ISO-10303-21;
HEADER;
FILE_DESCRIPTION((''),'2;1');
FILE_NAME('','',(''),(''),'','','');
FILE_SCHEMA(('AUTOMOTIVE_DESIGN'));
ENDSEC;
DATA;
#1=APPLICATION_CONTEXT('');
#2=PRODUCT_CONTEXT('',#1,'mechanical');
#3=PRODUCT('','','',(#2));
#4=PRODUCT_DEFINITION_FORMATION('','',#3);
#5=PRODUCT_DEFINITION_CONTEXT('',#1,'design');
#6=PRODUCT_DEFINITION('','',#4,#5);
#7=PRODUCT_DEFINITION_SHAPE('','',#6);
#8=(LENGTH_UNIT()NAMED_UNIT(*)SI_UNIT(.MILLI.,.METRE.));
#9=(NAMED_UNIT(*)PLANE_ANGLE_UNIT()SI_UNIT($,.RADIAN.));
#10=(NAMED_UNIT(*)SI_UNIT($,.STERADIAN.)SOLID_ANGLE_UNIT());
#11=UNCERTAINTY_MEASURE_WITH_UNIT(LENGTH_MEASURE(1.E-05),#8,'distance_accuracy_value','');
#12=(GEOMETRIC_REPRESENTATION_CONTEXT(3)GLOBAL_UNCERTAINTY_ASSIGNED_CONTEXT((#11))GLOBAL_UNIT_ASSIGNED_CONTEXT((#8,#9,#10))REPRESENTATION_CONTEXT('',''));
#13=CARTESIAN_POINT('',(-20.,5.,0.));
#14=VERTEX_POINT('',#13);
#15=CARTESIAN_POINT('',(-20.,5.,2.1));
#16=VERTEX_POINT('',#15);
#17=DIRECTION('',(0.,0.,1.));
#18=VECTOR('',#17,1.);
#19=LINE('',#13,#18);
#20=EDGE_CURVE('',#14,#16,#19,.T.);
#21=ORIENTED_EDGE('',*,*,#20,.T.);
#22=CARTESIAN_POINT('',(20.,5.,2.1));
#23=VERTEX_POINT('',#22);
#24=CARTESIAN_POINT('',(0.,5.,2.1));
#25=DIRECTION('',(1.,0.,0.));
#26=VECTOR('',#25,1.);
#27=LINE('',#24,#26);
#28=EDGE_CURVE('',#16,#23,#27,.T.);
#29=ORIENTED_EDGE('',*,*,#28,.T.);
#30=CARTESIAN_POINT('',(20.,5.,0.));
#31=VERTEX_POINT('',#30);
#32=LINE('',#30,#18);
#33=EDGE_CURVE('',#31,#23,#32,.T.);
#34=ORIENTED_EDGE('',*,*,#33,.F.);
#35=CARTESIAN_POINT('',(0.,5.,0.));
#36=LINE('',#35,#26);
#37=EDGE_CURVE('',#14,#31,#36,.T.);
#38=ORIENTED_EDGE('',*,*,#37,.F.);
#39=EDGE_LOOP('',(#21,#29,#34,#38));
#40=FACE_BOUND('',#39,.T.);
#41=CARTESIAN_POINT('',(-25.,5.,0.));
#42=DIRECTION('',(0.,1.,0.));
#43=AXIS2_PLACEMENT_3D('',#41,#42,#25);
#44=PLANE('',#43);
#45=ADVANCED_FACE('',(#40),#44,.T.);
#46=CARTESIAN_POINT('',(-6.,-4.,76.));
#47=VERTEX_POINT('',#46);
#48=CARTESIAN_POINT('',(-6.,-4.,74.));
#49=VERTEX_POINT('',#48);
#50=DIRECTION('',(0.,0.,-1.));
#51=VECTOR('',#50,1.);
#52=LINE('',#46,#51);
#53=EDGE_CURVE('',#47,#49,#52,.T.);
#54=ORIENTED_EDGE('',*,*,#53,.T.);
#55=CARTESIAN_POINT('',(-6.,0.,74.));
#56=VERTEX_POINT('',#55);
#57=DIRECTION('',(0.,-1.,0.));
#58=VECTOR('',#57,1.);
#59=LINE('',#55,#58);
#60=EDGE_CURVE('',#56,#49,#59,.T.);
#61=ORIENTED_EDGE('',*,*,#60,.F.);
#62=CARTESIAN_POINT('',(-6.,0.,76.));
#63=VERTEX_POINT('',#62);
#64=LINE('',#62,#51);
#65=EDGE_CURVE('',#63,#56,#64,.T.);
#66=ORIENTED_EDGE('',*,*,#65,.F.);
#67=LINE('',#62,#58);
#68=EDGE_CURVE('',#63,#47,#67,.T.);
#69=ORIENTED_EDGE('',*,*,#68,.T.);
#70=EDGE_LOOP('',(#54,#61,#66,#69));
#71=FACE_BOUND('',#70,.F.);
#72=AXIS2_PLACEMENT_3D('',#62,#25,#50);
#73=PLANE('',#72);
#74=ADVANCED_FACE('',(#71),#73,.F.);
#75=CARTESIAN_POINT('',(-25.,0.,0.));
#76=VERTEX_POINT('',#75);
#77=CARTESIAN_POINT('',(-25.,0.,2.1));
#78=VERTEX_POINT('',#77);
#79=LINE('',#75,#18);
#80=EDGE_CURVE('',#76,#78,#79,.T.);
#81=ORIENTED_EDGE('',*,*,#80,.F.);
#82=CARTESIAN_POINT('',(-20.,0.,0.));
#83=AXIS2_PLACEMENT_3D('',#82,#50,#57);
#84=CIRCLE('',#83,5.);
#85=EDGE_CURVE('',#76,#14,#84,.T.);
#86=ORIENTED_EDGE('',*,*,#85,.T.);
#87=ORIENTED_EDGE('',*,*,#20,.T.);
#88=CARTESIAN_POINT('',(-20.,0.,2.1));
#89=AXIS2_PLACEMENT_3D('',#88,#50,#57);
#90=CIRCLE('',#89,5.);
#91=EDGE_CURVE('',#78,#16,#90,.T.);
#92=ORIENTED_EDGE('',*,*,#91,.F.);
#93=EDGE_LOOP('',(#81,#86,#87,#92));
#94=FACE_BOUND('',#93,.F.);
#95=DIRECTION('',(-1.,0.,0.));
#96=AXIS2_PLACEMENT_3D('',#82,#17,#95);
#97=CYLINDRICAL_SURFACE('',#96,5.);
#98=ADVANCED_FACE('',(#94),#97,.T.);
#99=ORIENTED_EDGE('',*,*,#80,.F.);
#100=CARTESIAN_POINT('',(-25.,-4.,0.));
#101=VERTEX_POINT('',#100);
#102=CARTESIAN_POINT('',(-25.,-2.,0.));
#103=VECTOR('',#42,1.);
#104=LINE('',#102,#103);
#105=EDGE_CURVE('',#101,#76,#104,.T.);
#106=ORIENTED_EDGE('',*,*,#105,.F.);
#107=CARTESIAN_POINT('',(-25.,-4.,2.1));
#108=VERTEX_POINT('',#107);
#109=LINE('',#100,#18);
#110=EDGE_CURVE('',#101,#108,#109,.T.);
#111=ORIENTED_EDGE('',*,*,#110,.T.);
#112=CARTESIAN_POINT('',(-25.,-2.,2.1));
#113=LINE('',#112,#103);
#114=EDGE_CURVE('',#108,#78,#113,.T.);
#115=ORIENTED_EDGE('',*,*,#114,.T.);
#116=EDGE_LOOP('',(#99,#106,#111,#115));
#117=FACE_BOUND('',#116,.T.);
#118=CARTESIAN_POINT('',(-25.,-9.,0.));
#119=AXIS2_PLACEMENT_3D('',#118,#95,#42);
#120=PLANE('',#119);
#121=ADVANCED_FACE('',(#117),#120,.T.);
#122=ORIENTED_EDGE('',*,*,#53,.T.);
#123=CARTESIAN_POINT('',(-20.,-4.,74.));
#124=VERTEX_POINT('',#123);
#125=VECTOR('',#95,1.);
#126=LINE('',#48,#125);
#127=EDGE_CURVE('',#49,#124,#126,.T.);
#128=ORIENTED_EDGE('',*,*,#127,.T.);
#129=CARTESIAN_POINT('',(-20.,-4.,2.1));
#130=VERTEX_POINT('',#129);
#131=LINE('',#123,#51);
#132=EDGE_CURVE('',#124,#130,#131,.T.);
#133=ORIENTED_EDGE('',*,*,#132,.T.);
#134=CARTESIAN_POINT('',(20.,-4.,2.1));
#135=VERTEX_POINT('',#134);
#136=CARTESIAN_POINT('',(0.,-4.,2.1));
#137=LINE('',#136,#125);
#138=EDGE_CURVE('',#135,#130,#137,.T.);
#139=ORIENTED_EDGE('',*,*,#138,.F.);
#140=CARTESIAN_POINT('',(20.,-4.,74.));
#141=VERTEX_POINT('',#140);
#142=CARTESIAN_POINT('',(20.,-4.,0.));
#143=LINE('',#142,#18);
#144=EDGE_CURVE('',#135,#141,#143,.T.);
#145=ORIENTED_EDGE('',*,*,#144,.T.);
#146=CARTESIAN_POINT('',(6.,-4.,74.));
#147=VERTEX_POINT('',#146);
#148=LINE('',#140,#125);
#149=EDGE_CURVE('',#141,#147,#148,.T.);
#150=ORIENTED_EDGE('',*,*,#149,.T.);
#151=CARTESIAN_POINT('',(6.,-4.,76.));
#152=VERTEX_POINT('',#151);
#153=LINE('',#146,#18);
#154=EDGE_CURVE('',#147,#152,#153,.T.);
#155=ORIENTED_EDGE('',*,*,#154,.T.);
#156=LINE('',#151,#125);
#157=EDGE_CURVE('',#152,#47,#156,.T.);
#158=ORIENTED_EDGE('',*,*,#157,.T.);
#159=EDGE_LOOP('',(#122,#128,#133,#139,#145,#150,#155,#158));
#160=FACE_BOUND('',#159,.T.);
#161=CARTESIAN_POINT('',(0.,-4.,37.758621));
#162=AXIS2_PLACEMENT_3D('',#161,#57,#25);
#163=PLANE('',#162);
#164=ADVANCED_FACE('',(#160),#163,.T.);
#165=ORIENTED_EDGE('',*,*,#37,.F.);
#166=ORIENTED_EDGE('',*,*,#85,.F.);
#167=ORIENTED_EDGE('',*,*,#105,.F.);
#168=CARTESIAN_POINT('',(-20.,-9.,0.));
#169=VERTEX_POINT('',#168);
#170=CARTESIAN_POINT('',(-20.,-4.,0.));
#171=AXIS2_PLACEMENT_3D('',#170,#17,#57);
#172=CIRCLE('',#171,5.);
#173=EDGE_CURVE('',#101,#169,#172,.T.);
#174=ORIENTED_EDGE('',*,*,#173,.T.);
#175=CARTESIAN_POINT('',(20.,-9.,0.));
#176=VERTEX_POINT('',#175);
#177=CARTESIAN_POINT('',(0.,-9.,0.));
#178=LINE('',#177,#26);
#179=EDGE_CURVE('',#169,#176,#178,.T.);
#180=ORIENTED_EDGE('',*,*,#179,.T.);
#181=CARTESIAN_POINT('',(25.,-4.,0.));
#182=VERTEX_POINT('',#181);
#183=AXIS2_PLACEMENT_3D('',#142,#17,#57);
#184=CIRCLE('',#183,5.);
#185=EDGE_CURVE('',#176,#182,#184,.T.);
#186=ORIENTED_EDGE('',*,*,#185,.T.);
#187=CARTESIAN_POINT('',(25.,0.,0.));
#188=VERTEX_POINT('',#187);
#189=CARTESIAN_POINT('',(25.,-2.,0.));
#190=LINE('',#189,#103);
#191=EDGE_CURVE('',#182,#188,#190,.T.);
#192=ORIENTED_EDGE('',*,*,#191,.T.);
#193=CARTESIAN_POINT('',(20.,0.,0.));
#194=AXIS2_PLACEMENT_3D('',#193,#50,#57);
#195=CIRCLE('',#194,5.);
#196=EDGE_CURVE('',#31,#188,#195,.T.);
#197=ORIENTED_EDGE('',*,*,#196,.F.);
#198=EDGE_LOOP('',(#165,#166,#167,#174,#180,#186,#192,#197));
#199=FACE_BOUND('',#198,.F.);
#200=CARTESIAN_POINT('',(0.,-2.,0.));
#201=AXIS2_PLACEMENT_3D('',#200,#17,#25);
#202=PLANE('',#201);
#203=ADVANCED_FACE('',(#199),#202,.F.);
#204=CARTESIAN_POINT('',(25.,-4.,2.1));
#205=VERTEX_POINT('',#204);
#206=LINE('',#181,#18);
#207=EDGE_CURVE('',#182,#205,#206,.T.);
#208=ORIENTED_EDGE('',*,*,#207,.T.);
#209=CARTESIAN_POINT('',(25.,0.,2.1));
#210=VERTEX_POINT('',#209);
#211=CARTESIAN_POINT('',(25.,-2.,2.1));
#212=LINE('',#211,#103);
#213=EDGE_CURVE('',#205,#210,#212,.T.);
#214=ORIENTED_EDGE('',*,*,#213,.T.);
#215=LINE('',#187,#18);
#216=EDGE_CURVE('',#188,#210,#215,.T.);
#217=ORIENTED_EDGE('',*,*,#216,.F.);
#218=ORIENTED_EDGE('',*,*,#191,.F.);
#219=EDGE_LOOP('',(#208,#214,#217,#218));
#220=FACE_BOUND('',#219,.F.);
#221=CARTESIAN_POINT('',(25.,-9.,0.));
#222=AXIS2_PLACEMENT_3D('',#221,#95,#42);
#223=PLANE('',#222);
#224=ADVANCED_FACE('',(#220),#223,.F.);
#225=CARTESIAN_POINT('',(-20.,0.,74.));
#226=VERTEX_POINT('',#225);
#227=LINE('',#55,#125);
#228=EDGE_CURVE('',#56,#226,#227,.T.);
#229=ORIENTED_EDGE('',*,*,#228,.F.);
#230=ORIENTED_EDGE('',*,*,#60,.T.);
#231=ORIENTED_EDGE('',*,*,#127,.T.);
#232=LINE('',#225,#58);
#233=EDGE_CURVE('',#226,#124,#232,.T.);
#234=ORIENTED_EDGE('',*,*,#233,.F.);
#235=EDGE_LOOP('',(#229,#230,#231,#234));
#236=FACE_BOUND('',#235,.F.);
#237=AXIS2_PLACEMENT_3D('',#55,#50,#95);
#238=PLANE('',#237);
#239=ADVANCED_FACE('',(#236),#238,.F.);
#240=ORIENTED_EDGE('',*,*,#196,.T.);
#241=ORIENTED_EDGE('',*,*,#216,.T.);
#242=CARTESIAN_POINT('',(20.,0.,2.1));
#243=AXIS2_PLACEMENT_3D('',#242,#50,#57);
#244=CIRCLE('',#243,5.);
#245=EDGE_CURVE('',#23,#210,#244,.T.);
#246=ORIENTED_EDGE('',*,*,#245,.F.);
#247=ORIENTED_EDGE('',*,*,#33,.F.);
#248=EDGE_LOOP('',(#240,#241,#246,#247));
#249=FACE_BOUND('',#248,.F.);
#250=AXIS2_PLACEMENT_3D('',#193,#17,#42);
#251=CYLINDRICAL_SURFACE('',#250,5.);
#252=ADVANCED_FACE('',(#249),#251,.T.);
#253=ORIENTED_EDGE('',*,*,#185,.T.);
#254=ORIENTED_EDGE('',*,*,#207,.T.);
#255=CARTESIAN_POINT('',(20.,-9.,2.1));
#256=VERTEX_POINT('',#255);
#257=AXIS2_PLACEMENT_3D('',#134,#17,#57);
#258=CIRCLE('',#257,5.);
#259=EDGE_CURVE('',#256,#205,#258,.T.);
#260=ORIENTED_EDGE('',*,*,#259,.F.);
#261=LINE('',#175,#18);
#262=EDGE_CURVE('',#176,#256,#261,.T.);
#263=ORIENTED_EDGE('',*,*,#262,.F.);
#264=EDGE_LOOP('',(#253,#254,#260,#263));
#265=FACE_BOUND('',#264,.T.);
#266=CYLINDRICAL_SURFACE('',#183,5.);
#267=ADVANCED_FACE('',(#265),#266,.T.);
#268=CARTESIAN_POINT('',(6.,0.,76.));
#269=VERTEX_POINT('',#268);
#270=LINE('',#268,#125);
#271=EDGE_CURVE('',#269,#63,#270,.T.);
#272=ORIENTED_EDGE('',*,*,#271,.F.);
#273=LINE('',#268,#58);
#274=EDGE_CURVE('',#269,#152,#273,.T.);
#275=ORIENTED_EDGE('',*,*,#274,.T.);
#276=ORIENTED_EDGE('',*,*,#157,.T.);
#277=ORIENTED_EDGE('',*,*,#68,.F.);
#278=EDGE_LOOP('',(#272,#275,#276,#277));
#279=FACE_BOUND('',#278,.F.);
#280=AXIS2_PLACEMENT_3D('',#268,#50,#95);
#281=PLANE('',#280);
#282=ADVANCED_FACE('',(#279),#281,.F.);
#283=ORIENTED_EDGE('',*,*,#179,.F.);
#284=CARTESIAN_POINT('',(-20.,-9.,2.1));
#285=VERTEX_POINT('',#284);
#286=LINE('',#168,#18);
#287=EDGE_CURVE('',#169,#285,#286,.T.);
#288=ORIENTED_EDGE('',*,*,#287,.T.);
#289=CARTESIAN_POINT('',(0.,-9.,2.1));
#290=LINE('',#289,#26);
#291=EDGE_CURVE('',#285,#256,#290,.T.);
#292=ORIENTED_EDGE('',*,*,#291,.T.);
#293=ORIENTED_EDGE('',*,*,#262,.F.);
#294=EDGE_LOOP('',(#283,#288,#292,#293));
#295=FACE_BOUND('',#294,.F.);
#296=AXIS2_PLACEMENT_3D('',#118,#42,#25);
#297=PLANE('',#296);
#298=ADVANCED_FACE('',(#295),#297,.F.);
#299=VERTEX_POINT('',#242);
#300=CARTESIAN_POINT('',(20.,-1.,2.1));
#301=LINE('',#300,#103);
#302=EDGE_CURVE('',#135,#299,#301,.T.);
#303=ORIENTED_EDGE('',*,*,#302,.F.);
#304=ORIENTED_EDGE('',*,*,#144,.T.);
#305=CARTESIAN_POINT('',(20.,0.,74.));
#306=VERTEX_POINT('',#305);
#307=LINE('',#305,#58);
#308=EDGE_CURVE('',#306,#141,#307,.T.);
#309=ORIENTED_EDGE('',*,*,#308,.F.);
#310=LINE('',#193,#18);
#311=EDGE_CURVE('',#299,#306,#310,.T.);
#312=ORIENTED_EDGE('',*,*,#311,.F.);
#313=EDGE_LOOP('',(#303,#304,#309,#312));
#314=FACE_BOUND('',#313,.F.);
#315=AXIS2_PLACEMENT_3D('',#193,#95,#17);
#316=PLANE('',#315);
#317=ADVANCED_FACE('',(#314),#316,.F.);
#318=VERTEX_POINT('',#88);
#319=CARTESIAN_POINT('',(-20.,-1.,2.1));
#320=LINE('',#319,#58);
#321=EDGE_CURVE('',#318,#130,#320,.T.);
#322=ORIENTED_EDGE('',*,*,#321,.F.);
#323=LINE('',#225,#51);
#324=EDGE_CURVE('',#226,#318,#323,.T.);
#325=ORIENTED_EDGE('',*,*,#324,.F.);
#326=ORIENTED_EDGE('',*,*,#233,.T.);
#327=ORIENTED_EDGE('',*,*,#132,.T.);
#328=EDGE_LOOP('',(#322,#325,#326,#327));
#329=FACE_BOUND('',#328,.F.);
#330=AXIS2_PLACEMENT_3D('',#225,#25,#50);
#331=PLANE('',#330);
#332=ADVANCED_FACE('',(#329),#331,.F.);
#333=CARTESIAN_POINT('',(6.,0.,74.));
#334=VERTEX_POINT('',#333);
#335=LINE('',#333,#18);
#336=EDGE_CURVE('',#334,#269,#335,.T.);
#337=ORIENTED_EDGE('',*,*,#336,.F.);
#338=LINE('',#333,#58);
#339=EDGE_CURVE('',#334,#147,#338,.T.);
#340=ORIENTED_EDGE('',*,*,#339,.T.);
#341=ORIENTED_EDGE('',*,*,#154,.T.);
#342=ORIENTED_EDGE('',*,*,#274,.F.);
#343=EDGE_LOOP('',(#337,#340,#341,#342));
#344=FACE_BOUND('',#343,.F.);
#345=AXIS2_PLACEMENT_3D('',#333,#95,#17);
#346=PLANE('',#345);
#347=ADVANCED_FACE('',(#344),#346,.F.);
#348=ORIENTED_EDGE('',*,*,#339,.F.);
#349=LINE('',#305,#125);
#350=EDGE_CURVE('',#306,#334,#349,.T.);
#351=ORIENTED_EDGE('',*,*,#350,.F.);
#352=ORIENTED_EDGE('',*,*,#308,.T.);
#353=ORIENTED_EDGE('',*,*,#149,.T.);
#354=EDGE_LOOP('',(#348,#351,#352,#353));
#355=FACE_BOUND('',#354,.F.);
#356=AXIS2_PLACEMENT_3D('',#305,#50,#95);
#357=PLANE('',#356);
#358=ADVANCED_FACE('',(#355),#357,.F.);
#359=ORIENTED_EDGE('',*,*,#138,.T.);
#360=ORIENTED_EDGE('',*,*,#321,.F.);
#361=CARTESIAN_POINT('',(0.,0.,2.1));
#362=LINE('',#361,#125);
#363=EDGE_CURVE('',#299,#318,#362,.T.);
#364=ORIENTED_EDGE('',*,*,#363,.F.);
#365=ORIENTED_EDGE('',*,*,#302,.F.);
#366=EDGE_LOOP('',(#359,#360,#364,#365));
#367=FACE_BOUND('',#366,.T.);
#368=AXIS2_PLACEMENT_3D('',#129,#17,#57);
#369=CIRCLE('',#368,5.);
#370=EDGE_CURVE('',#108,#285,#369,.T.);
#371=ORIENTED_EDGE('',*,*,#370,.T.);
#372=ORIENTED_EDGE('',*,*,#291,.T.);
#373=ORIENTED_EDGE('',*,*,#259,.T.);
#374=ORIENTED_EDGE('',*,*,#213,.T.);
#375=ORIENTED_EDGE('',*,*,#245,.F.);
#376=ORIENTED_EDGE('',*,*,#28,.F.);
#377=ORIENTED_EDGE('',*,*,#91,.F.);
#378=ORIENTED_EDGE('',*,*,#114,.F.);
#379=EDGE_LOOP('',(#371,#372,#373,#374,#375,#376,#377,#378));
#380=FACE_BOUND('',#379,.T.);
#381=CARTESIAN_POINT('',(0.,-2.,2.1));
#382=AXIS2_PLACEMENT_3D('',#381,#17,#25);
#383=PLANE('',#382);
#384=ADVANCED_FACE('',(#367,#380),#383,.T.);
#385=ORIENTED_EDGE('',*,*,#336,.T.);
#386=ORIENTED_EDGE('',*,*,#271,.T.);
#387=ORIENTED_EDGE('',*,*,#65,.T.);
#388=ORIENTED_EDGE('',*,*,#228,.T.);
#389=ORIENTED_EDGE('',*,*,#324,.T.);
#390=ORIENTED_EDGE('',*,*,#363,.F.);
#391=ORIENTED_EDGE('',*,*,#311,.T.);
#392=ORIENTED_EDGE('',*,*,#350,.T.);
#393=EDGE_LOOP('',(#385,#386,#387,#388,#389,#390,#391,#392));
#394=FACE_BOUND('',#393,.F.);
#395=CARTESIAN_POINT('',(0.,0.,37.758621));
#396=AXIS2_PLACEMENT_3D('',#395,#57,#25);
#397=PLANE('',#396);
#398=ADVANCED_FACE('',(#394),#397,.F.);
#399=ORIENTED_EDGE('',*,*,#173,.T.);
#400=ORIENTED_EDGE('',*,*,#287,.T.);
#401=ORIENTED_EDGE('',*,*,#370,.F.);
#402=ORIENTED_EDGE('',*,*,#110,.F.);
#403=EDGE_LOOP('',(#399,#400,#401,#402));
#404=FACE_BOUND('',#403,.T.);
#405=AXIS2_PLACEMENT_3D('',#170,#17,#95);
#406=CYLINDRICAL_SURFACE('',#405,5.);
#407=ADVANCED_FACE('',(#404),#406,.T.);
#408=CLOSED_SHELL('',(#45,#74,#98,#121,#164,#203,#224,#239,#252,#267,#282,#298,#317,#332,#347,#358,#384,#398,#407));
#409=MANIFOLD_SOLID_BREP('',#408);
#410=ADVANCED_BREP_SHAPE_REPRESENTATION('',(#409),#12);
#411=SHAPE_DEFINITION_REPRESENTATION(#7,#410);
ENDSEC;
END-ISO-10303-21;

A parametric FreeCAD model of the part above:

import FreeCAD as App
import Part
import Sketcher

V = App.Vector
Q = App.Units.Quantity


def edges_at(feature, points):
    """Names of the edges that pass closest to the given points."""
    edges = feature.Shape.Edges
    near = lambda p: min(range(len(edges)), key=lambda i: edges[i].distToShape(Part.Vertex(*p))[0])
    return sorted({f"Edge{near(p) + 1}" for p in points})


def add_polygon(sketch, points):
    """Adds a closed chain of lines whose ends are joined by coincident constraints."""
    first, n = sketch.GeometryCount, len(points)
    for a, b in zip(points, points[1:] + points[:1]):
        sketch.addGeometry(Part.LineSegment(App.Vector(*a, 0), App.Vector(*b, 0)), False)
    for i in range(n):
        sketch.addConstraint(Sketcher.Constraint("Coincident", first + i, 2, first + (i + 1) % n, 1))

doc = App.newDocument("Part")
body = doc.addObject("PartDesign::Body", "Body")

# Sketch on XZ plane
sketch1 = body.newObject("Sketcher::SketchObject", "Sketch")
sketch1.AttachmentSupport = (doc.getObject("XZ_Plane"), [""])
sketch1.MapMode = "FlatFace"
add_polygon(sketch1, [(-20, 0), (20, 0), (20, 74), (6, 74), (6, 76), (-6, 76), (-6, 74), (-20, 74)])  # lines 0-7
sketch1.addConstraint([
    Sketcher.Constraint("Horizontal", 0),
    Sketcher.Constraint("Vertical", 1),
    Sketcher.Constraint("Horizontal", 2),
    Sketcher.Constraint("Vertical", 3),
    Sketcher.Constraint("Horizontal", 4),
    Sketcher.Constraint("Vertical", 5),
    Sketcher.Constraint("Horizontal", 6),
    Sketcher.Constraint("Vertical", 7),
    Sketcher.Constraint("Symmetric", 0, 2, 7, 2, -1, 1),
    Sketcher.Constraint("Symmetric", 2, 2, 5, 2, -2),
    Sketcher.Constraint("DistanceX", 0, 1, 0, 2, Q("40 mm")),
    Sketcher.Constraint("DistanceX", 2, 2, 2, 1, Q("14 mm")),
    Sketcher.Constraint("DistanceY", 1, 1, 1, 2, Q("74 mm")),
    Sketcher.Constraint("DistanceY", 3, 1, 3, 2, Q("2 mm")),
])
pad1 = body.newObject("PartDesign::Pad", "Pad")
pad1.Profile = sketch1
pad1.Length = 4

# Sketch on XY plane
sketch2 = body.newObject("Sketcher::SketchObject", "Sketch001")
sketch2.AttachmentSupport = (doc.getObject("XY_Plane"), [""])
sketch2.MapMode = "FlatFace"
add_polygon(sketch2, [(-25, 5), (-25, -9), (25, -9), (25, 5)])  # lines 0-3
sketch2.addConstraint([
    Sketcher.Constraint("Vertical", 0),
    Sketcher.Constraint("Horizontal", 1),
    Sketcher.Constraint("Vertical", 2),
    Sketcher.Constraint("Horizontal", 3),
    Sketcher.Constraint("DistanceX", 1, 1, 1, 2, Q("50 mm")),
    Sketcher.Constraint("DistanceY", 0, 2, 0, 1, Q("14 mm")),
    Sketcher.Constraint("DistanceX", 0, 2, -1, 1, Q("25 mm")),
    Sketcher.Constraint("DistanceY", 0, 2, -1, 1, Q("9 mm")),
])
pad2 = body.newObject("PartDesign::Pad", "Pad001")
pad2.Profile = sketch2
pad2.Length = 2.1
doc.recompute()

fillet = body.newObject("PartDesign::Fillet", "Fillet")
fillet.Base = (pad2, edges_at(pad2, [
    (-25, -9, 1.05),
    (25, -9, 1.05),
    (25, 5, 1.05),
    (-25, 5, 1.05),
]))
fillet.Radius = 5

doc.recompute()
